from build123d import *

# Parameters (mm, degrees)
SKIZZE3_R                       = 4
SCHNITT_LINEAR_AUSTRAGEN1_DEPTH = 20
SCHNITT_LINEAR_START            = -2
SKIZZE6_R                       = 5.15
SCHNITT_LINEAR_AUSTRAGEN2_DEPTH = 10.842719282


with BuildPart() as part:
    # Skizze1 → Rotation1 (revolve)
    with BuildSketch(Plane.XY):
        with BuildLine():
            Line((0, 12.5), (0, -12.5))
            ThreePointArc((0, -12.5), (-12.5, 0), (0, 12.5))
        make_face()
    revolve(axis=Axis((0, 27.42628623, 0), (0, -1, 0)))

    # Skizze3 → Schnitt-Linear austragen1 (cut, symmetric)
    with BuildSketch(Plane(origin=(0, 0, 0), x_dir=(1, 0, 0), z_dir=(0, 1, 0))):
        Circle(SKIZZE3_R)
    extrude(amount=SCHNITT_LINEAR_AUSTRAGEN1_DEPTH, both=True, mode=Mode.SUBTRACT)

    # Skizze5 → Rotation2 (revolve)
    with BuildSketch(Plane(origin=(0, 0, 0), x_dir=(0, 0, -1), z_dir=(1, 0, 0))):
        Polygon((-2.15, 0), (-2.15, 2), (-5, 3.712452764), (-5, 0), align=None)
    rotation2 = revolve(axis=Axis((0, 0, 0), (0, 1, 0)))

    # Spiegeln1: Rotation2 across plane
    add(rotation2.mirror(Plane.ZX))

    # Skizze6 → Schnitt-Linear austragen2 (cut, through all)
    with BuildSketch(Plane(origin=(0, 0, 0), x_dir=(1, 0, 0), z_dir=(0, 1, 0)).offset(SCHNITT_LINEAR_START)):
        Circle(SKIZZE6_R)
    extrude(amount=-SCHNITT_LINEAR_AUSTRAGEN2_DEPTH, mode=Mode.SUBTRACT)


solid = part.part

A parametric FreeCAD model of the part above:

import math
import FreeCAD as App
import Part
import Sketcher

V = App.Vector
Q = App.Units.Quantity


def add_polygon(sketch, points):
    """Adds a closed chain of lines whose ends are joined by coincident constraints."""
    first, n = sketch.GeometryCount, len(points)
    for a, b in zip(points, points[1:] + points[:1]):
        sketch.addGeometry(Part.LineSegment(App.Vector(*a, 0), App.Vector(*b, 0)), False)
    for i in range(n):
        sketch.addConstraint(Sketcher.Constraint("Coincident", first + i, 2, first + (i + 1) % n, 1))

doc = App.newDocument("Part")
body = doc.addObject("PartDesign::Body", "Body")

# Sketch on XY plane
sketch1 = body.newObject("Sketcher::SketchObject", "Sketch")
sketch1.AttachmentSupport = (doc.getObject("XY_Plane"), [""])
sketch1.MapMode = "FlatFace"
sketch1.addGeometry([
    Part.LineSegment(V(0, -12, 0), V(0, 12, 0)),
    Part.ArcOfCircle(Part.Circle(V(0, 0, 0), V(0, 0, 1), 12), math.radians(90), math.radians(270)),
], False)
sketch1.addConstraint([
    Sketcher.Constraint("Coincident", 0, 1, 1, 2),
    Sketcher.Constraint("Coincident", 1, 1, 0, 2),
    Sketcher.Constraint("Vertical", 0),
    Sketcher.Constraint("Coincident", 1, 3, -1, 1),
    Sketcher.Constraint("PointOnObject", 0, 1, -2),
    Sketcher.Constraint("Radius", 1, 12.5),
])
revolution = body.newObject("PartDesign::Revolution", "Revolution")
revolution.Profile = sketch1
revolution.ReferenceAxis = (sketch1, ["V_Axis"])
revolution.Angle = 360

# Sketch on XZ plane
sketch2 = body.newObject("Sketcher::SketchObject", "Sketch001")
sketch2.AttachmentSupport = (doc.getObject("XZ_Plane"), [""])
sketch2.MapMode = "FlatFace"
sketch2.addGeometry(Part.Circle(V(0, 0, 0), V(0, 0, 1), 4), False)
sketch2.addConstraint([
    Sketcher.Constraint("Coincident", 0, 3, -1, 1),
    Sketcher.Constraint("Diameter", 0, 8.0),
])
pocket1 = body.newObject("PartDesign::Pocket", "Pocket")
pocket1.Profile = sketch2
pocket1.Length = 40
pocket1.Midplane = True

# Sketch on YZ plane
sketch3 = body.newObject("Sketcher::SketchObject", "Sketch002")
sketch3.AttachmentSupport = (doc.getObject("YZ_Plane"), [""])
sketch3.MapMode = "FlatFace"
add_polygon(sketch3, [(0, 2.1), (2, 2.1), (3.7, 5), (0, 5)])  # lines 0-3
sketch3.addConstraint([
    Sketcher.Constraint("Horizontal", 0),
    Sketcher.Constraint("Horizontal", 2),
    Sketcher.Constraint("Vertical", 3),
    Sketcher.Constraint("PointOnObject", 2, 2, -2),
    Sketcher.Constraint("DistanceX", 0, 1, 0, 2, 2.0),
    Sketcher.Constraint("Angle", 1, Q("59 deg")),
    Sketcher.Constraint("DistanceY", -1, 1, 1, 2, 5.0),
    Sketcher.Constraint("DistanceY", 3, 2, 3, 1, 2.85),
])
revolution2 = body.newObject("PartDesign::Revolution", "Revolution001")
revolution2.Profile = sketch3
revolution2.ReferenceAxis = (sketch3, ["H_Axis"])
revolution2.Angle = 360
doc.recompute()

mirrored = body.newObject("PartDesign::Mirrored", "Mirrored")
mirrored.Originals = [revolution2]
mirrored.MirrorPlane = (doc.getObject("XZ_Plane"), [""])
body.Tip = mirrored

# Sketch on XZ plane
sketch4 = body.newObject("Sketcher::SketchObject", "Sketch003")
sketch4.AttachmentSupport = (doc.getObject("XZ_Plane"), [""])
sketch4.MapMode = "FlatFace"
sketch4.AttachmentOffset = App.Placement(V(0, 0, 2), App.Rotation())
sketch4.addGeometry(Part.Circle(V(0, 0, 0), V(0, 0, 1), 5), False)
sketch4.addConstraint([
    Sketcher.Constraint("Coincident", 0, 3, -1, 1),
    Sketcher.Constraint("Diameter", 0, 10.3),
])
pocket2 = body.newObject("PartDesign::Pocket", "Pocket001")
pocket2.Profile = sketch4
pocket2.Type = "ThroughAll"
pocket2.Reversed = True

doc.recompute()
